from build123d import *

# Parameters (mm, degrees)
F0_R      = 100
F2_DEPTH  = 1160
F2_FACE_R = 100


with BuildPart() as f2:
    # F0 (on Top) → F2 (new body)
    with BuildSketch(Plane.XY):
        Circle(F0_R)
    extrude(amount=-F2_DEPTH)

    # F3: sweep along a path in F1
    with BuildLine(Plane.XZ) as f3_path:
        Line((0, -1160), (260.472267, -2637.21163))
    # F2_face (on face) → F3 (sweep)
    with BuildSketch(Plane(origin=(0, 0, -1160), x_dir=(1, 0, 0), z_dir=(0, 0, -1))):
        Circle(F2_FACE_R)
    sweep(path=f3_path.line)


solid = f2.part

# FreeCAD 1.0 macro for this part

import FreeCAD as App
import Part
import Sketcher

doc = App.newDocument("Part")
body = doc.addObject("PartDesign::Body", "Body")

# Sketch on XY plane
sketch1 = body.newObject("Sketcher::SketchObject", "Sketch")
sketch1.AttachmentSupport = (doc.getObject("XY_Plane"), [""])
sketch1.MapMode = "FlatFace"
sketch1.addGeometry(Part.Circle(App.Vector(0, 0, 0), App.Vector(0, 0, 1), 100), False)
sketch1.addConstraint(Sketcher.Constraint("Coincident", 0, 3, -1, 1))
sketch1.addConstraint(Sketcher.Constraint("Diameter", 0, 200.0))
pad1 = body.newObject("PartDesign::Pad", "Pad")
pad1.Profile = sketch1
pad1.Length = 1160
pad1.Reversed = True

# Sketch on XY plane
sketch2 = body.newObject("Sketcher::SketchObject", "Sketch001")
sketch2.AttachmentSupport = (doc.getObject("XY_Plane"), [""])
sketch2.MapMode = "FlatFace"
sketch2.AttachmentOffset = App.Placement(App.Vector(0, 0, -1160), App.Rotation())
sketch2.addGeometry(Part.Circle(App.Vector(0, 0, 0), App.Vector(0, 0, 1), 100), False)
sketch2.addConstraint(Sketcher.Constraint("Coincident", 0, 3, -1, 1))
sketch2.addConstraint(Sketcher.Constraint("Diameter", 0, 200.0))

# Sketch on an angled plane
sketch3 = body.newObject("Sketcher::SketchObject", "Sketch002")
sketch3.Placement = App.Placement(App.Vector(-198.371683, 0, -34.97828), App.Rotation(App.Vector(0.173648178, 0, -0.984807753), App.Vector(0, 1, 0), App.Vector(0.984807753, 0, 0.173648178), "ZXY"))
sketch3.addGeometry(Part.LineSegment(App.Vector(1142.376994, 0, 0), App.Vector(2642.376994, 0, 0)), False)
sketch3.addConstraint(Sketcher.Constraint("Horizontal", 0))
sketch3.addConstraint(Sketcher.Constraint("PointOnObject", 0, 1, -1))
sketch3.addConstraint(Sketcher.Constraint("DistanceX", 0, 1, 0, 2, 1500.000001))
sketch3.addConstraint(Sketcher.Constraint("DistanceX", -1, 1, 0, 1, 1142.376994))
doc.recompute()

additivepipe = body.newObject("PartDesign::AdditivePipe", "AdditivePipe")
additivepipe.Profile = sketch2
additivepipe.Spine = (sketch3, ["Edge1"])

doc.recompute()
